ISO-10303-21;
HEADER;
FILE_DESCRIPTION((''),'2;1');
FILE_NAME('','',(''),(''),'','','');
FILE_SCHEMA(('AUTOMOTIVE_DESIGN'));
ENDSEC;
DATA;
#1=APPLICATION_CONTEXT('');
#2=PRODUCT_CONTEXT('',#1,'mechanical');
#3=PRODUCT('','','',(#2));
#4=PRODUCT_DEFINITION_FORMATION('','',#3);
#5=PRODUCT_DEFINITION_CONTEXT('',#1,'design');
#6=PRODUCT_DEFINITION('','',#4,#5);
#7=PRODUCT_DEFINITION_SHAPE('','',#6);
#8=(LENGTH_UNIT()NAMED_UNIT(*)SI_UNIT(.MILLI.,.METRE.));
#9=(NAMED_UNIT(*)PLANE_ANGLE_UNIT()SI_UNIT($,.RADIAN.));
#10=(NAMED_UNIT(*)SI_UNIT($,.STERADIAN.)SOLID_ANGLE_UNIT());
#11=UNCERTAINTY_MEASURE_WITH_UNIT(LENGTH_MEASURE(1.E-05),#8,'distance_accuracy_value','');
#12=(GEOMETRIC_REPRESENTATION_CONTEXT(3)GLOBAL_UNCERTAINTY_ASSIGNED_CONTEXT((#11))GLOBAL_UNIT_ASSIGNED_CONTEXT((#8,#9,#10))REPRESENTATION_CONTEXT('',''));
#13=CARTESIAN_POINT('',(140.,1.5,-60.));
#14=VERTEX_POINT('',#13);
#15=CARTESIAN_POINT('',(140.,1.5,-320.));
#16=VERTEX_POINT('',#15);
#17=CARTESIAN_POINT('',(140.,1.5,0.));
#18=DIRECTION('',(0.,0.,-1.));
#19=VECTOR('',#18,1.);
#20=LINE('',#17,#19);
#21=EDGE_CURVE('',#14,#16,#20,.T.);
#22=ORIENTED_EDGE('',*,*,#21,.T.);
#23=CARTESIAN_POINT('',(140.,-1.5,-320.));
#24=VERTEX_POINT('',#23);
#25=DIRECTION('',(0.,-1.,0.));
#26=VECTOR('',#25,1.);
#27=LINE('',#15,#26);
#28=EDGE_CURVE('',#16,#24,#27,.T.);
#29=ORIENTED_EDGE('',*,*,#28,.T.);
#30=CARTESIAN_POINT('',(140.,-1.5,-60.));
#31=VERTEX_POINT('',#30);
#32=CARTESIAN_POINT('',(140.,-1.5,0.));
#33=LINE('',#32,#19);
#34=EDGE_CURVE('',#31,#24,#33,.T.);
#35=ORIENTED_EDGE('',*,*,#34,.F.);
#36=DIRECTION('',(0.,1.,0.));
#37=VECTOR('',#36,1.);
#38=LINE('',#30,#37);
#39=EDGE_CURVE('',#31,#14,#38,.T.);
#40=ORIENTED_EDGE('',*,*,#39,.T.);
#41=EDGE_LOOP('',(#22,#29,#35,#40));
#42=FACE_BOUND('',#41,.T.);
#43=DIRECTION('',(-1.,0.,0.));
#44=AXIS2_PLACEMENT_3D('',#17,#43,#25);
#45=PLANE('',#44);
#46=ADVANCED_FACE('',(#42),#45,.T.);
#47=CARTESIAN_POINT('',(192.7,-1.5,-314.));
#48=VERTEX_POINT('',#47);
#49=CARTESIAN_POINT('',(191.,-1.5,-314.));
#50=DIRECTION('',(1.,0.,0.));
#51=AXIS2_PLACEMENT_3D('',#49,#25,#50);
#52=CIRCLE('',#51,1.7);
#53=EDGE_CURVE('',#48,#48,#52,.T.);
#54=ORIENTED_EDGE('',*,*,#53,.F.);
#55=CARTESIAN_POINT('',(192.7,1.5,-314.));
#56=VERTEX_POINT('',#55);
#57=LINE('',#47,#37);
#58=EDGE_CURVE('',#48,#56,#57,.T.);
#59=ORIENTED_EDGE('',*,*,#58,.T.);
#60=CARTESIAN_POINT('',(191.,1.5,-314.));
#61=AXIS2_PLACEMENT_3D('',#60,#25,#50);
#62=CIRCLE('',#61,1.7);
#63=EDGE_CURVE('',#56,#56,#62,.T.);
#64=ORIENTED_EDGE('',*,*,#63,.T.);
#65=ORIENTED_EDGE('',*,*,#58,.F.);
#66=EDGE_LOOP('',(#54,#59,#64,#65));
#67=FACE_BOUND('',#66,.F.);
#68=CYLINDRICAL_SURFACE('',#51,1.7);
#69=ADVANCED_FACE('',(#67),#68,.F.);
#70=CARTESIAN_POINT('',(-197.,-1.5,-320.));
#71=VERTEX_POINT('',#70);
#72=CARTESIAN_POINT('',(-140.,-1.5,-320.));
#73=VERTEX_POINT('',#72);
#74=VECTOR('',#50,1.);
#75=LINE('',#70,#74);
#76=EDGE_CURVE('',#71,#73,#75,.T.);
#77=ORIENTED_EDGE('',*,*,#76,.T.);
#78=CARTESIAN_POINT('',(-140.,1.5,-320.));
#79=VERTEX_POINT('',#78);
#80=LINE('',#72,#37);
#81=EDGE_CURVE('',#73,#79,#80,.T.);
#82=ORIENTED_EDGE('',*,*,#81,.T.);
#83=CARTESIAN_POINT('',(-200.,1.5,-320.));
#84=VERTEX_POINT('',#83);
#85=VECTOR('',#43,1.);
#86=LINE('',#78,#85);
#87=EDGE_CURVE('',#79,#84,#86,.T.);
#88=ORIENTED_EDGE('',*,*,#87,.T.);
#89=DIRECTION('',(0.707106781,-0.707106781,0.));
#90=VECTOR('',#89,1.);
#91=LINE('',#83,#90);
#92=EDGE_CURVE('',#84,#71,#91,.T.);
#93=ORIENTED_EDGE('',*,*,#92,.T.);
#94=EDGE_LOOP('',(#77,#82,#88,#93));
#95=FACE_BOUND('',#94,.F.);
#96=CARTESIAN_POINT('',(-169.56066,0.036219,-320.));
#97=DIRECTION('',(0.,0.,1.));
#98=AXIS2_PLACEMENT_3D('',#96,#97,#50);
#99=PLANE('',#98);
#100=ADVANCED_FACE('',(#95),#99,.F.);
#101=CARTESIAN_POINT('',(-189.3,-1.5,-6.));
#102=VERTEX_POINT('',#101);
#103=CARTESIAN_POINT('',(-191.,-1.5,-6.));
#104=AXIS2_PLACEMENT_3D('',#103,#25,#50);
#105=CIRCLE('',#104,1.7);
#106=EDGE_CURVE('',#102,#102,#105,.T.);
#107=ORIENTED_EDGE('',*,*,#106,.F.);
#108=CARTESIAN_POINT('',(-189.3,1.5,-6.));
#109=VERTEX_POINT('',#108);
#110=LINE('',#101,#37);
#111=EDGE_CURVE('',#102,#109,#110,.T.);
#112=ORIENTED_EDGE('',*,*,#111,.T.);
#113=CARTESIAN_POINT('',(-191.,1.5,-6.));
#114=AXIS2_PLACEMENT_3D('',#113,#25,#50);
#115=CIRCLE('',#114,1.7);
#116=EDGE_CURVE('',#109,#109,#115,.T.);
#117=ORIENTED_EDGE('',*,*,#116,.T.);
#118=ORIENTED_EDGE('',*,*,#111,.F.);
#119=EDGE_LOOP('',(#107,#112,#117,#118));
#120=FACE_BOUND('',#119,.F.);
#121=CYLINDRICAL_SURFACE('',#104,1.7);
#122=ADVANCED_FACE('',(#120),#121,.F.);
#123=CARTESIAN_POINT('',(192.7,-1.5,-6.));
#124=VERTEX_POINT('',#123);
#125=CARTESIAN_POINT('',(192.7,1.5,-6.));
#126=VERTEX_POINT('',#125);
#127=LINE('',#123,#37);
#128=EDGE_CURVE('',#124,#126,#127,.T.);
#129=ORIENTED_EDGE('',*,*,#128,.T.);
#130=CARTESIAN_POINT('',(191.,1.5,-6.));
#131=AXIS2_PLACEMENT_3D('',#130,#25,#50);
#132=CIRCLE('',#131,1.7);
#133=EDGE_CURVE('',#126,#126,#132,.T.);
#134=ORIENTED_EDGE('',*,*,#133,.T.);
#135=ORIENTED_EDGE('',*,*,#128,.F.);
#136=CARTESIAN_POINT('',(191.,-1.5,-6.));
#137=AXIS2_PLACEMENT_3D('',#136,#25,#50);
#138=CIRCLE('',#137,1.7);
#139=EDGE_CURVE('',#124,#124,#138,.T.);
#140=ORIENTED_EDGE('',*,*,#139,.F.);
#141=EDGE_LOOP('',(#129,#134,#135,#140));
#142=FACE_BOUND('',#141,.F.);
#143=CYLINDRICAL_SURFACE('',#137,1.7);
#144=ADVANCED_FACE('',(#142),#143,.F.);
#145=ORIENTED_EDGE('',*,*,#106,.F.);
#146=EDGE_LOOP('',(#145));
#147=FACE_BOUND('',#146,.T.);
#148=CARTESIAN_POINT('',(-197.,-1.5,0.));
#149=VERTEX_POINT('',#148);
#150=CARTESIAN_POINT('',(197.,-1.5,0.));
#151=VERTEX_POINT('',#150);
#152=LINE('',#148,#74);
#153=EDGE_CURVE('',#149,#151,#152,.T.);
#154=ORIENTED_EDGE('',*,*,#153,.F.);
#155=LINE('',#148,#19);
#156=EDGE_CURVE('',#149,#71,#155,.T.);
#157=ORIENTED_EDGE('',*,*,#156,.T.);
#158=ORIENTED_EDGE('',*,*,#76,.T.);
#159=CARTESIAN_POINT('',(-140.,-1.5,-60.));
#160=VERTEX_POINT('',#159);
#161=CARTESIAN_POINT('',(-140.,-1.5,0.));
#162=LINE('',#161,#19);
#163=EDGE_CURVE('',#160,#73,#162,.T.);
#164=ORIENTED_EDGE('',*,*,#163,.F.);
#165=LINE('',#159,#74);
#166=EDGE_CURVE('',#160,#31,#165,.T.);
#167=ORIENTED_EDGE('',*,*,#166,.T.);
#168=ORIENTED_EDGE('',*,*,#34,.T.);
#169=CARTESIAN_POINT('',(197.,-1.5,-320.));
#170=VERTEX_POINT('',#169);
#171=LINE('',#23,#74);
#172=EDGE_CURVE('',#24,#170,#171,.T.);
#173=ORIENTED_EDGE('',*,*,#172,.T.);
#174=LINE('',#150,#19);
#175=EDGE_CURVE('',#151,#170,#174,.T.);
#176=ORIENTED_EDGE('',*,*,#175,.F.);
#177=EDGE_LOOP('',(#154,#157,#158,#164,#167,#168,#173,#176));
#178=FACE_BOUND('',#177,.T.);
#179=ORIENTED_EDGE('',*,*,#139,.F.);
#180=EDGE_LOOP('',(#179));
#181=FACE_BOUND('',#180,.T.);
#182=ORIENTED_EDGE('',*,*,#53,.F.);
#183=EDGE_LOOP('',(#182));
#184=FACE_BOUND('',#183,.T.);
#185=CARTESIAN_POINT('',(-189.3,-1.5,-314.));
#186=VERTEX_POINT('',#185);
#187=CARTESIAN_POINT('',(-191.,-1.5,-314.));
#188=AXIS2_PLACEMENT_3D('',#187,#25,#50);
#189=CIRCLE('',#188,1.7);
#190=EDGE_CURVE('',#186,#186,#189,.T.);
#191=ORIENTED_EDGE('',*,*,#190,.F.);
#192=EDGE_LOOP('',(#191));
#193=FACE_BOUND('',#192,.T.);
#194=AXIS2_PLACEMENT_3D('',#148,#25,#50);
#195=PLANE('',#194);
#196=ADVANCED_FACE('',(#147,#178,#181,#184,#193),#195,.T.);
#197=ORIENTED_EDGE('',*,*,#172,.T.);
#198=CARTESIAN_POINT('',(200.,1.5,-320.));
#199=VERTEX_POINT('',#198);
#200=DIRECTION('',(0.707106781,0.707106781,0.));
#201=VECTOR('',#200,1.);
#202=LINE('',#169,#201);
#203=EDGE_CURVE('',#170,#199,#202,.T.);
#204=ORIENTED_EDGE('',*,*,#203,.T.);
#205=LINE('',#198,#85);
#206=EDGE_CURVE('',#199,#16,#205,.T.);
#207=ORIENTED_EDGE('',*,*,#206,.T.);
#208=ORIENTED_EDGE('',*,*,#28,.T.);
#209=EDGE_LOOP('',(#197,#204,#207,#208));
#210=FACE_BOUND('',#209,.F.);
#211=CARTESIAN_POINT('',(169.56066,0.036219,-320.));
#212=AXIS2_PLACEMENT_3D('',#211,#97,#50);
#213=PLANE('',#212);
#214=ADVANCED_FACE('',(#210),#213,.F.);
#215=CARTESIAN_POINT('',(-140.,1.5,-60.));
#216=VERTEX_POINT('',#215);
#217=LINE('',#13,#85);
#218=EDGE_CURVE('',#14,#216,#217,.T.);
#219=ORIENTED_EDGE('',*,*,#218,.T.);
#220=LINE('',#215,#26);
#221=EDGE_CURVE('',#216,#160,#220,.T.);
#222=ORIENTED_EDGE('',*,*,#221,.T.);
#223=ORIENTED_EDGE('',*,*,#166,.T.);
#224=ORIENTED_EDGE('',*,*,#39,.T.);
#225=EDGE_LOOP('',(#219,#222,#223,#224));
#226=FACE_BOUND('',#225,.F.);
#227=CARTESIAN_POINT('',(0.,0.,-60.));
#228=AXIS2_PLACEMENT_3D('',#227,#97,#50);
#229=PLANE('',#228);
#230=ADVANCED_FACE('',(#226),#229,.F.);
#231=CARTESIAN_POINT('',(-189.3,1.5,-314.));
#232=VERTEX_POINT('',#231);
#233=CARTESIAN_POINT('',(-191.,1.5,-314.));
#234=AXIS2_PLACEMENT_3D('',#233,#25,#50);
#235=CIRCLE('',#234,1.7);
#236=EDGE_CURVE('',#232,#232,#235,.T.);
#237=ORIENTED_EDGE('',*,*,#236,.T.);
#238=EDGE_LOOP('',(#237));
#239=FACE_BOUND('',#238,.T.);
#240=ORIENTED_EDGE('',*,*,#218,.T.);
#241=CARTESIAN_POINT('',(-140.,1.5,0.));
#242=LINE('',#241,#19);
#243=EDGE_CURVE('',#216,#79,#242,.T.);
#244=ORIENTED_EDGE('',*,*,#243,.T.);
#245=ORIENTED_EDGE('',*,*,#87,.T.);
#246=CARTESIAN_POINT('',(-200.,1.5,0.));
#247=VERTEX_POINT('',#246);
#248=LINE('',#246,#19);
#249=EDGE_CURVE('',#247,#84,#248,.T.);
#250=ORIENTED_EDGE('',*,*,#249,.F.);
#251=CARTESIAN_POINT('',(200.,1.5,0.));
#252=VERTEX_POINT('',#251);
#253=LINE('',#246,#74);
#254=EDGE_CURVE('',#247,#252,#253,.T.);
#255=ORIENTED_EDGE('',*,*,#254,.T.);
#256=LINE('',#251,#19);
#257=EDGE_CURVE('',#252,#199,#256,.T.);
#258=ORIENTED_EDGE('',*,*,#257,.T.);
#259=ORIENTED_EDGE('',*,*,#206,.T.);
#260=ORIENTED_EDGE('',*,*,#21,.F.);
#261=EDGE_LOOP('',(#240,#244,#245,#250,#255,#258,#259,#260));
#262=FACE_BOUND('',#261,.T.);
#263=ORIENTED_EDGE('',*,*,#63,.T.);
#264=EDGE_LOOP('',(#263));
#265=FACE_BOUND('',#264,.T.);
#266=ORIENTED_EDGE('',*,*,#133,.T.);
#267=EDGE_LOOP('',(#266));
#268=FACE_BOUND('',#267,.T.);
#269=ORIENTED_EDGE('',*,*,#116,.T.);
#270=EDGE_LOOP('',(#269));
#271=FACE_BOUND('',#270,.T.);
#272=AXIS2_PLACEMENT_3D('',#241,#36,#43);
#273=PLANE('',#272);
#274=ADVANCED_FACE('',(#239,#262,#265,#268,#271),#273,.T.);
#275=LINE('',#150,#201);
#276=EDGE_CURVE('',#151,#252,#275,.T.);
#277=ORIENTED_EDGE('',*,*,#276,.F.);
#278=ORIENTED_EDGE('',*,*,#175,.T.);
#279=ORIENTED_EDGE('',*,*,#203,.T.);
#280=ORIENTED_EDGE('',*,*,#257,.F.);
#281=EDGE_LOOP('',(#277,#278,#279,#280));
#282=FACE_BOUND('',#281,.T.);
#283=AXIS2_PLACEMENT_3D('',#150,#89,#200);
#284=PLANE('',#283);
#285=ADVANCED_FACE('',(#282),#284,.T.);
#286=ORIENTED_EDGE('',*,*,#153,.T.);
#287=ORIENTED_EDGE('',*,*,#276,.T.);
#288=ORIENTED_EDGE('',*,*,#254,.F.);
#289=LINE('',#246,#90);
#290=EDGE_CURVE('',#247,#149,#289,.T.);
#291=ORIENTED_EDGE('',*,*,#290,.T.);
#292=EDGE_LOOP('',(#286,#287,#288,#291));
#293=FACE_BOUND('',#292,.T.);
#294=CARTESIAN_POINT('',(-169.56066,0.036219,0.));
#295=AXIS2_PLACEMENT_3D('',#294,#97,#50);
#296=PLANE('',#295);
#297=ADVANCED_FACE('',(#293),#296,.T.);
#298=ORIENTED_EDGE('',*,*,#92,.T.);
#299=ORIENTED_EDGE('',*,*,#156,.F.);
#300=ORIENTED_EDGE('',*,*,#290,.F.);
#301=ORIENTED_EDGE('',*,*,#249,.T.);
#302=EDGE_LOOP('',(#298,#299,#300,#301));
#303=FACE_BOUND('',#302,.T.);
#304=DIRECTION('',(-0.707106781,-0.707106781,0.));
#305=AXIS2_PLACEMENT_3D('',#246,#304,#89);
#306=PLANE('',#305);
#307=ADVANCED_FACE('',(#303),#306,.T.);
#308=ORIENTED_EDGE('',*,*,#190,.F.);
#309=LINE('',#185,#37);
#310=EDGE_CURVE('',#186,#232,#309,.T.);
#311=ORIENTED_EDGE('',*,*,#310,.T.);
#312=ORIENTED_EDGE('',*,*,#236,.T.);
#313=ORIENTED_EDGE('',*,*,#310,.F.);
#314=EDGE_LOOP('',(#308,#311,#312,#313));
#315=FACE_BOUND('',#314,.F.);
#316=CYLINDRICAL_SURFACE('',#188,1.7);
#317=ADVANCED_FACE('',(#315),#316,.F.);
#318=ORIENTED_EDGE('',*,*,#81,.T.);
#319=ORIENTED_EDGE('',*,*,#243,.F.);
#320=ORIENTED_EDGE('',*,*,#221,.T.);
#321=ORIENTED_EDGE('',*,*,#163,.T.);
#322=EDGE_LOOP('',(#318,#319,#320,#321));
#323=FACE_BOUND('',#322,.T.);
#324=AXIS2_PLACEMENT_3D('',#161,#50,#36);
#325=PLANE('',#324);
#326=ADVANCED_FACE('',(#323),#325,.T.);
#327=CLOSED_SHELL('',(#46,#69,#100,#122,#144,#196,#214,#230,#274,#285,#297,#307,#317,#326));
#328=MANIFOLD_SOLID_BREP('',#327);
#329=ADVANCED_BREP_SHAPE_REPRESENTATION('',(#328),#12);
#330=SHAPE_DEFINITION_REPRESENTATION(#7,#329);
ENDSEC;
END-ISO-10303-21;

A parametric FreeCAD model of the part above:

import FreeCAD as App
import Part
import Sketcher
from FreeCAD import Vector
Q = App.Units.Quantity

doc = App.newDocument("Part")
params = doc.addObject("Spreadsheet::Sheet", "Params")
for row, (alias, value) in enumerate([
    ("sketch1_width", "280 mm"),
    ("sketch1_height", "3 mm"),
    ("pad1_length", "60 mm"),
    ("sketch2_width", "60 mm"),
    ("sketch2_width2", "57 mm"),
    ("pad2_length", "320 mm"),
    ("sketch3_diameter", "3.4 mm"),
    ("pocket1_length", "3 mm"),
], start=1):
    params.set(f"A{row}", alias)
    params.set(f"B{row}", "=" + value)
    params.setAlias(f"B{row}", alias)

body = doc.addObject("PartDesign::Body", "Body")

sketch1 = body.newObject("Sketcher::SketchObject", "Sketch")
sketch1.AttachmentSupport = (doc.getObject("XY_Plane"), [""])
sketch1.MapMode = "FlatFace"
sketch1.addGeometry(Part.LineSegment(Vector(140, 1.5, 0), Vector(-140, 1.5, 0)), False)
sketch1.addGeometry(Part.LineSegment(Vector(-140, 1.5, 0), Vector(-140, -1.5, 0)), False)
sketch1.addGeometry(Part.LineSegment(Vector(-140, -1.5, 0), Vector(140, -1.5, 0)), False)
sketch1.addGeometry(Part.LineSegment(Vector(140, -1.5, 0), Vector(140, 1.5, 0)), False)
sketch1.addConstraint(Sketcher.Constraint("Coincident", 0, 2, 1, 1))
sketch1.addConstraint(Sketcher.Constraint("Coincident", 1, 2, 2, 1))
sketch1.addConstraint(Sketcher.Constraint("Coincident", 2, 2, 3, 1))
sketch1.addConstraint(Sketcher.Constraint("Coincident", 3, 2, 0, 1))
sketch1.addConstraint(Sketcher.Constraint("Horizontal", 0))
sketch1.addConstraint(Sketcher.Constraint("Vertical", 1))
sketch1.addConstraint(Sketcher.Constraint("Horizontal", 2))
sketch1.addConstraint(Sketcher.Constraint("Vertical", 3))
sketch1.addConstraint(Sketcher.Constraint("Symmetric", 0, 2, 2, 2, -1, 1))
sketch1.addConstraint(Sketcher.Constraint("DistanceX", 0, 2, 0, 1, Q("280 mm")))
sketch1.addConstraint(Sketcher.Constraint("DistanceY", 1, 2, 1, 1, Q("3 mm")))
sketch1.setExpression("Constraints[9]", "Params.sketch1_width")
sketch1.setExpression("Constraints[10]", "Params.sketch1_height")
pad1 = body.newObject("PartDesign::Pad", "Pad")
pad1.Profile = sketch1
pad1.setExpression("Length", "Params.pad1_length")
pad1.Reversed = True

sketch2 = body.newObject("Sketcher::SketchObject", "Sketch001")
sketch2.AttachmentSupport = (doc.getObject("XY_Plane"), [""])
sketch2.MapMode = "FlatFace"
sketch2.addGeometry(Part.LineSegment(Vector(-140, 1.5, 0), Vector(-200, 1.5, 0)), False)
sketch2.addGeometry(Part.LineSegment(Vector(-200, 1.5, 0), Vector(-197, -1.5, 0)), False)
sketch2.addGeometry(Part.LineSegment(Vector(-197, -1.5, 0), Vector(-140, -1.5, 0)), False)
sketch2.addGeometry(Part.LineSegment(Vector(-140, -1.5, 0), Vector(-140, 1.5, 0)), False)
sketch2.addGeometry(Part.LineSegment(Vector(200, 1.5, 0), Vector(140, 1.5, 0)), False)
sketch2.addGeometry(Part.LineSegment(Vector(140, 1.5, 0), Vector(140, -1.5, 0)), False)
sketch2.addGeometry(Part.LineSegment(Vector(140, -1.5, 0), Vector(197, -1.5, 0)), False)
sketch2.addGeometry(Part.LineSegment(Vector(197, -1.5, 0), Vector(200, 1.5, 0)), False)
sketch2.addConstraint(Sketcher.Constraint("Coincident", 0, 2, 1, 1))
sketch2.addConstraint(Sketcher.Constraint("Coincident", 1, 2, 2, 1))
sketch2.addConstraint(Sketcher.Constraint("Coincident", 2, 2, 3, 1))
sketch2.addConstraint(Sketcher.Constraint("Coincident", 3, 2, 0, 1))
sketch2.addConstraint(Sketcher.Constraint("Coincident", 4, 2, 5, 1))
sketch2.addConstraint(Sketcher.Constraint("Coincident", 5, 2, 6, 1))
sketch2.addConstraint(Sketcher.Constraint("Coincident", 6, 2, 7, 1))
sketch2.addConstraint(Sketcher.Constraint("Coincident", 7, 2, 4, 1))
sketch2.addConstraint(Sketcher.Constraint("Horizontal", 0))
sketch2.addConstraint(Sketcher.Constraint("Horizontal", 2))
sketch2.addConstraint(Sketcher.Constraint("Vertical", 3))
sketch2.addConstraint(Sketcher.Constraint("Horizontal", 4))
sketch2.addConstraint(Sketcher.Constraint("Vertical", 5))
sketch2.addConstraint(Sketcher.Constraint("Horizontal", 6))
sketch2.addConstraint(Sketcher.Constraint("Symmetric", 2, 2, 4, 2, -1, 1))
sketch2.addConstraint(Sketcher.Constraint("Symmetric", 1, 2, 6, 2, -2))
sketch2.addConstraint(Sketcher.Constraint("Symmetric", 0, 2, 7, 2, -2))
sketch2.addConstraint(Sketcher.Constraint("Perpendicular", 1, 7))
sketch2.addConstraint(Sketcher.Constraint("DistanceX", 0, 2, 0, 1, Q("60 mm")))
sketch2.addConstraint(Sketcher.Constraint("DistanceX", 2, 1, 2, 2, Q("57 mm")))
sketch2.addConstraint(Sketcher.Constraint("DistanceX", 0, 2, -1, 1, Q("200 mm")))
sketch2.setExpression("Constraints[18]", "Params.sketch2_width")
sketch2.setExpression("Constraints[19]", "Params.sketch2_width2")
pad2 = body.newObject("PartDesign::Pad", "Pad001")
pad2.Profile = sketch2
pad2.setExpression("Length", "Params.pad2_length")
pad2.Reversed = True

sketch3 = body.newObject("Sketcher::SketchObject", "Sketch002")
sketch3.AttachmentSupport = (doc.getObject("XZ_Plane"), [""])
sketch3.MapMode = "FlatFace"
sketch3.AttachmentOffset = App.Placement(Vector(0, 0, 1.5), App.Rotation())
sketch3.addGeometry(Part.Circle(Vector(191, -6, 0), Vector(0, 0, 1), 1.7), False)
sketch3.addGeometry(Part.Circle(Vector(191, -314, 0), Vector(0, 0, 1), 1.7), False)
sketch3.addGeometry(Part.Circle(Vector(-191, -314, 0), Vector(0, 0, 1), 1.7), False)
sketch3.addGeometry(Part.Circle(Vector(-191, -6, 0), Vector(0, 0, 1), 1.7), False)
sketch3.addConstraint(Sketcher.Constraint("Equal", 0, 1))
sketch3.addConstraint(Sketcher.Constraint("Equal", 1, 2))
sketch3.addConstraint(Sketcher.Constraint("Equal", 2, 3))
sketch3.addConstraint(Sketcher.Constraint("Symmetric", 1, 3, 2, 3, -2))
sketch3.addConstraint(Sketcher.Constraint("Symmetric", 0, 3, 3, 3, -2))
sketch3.addConstraint(Sketcher.Constraint("Vertical", 0, 3, 1, 3))
sketch3.addConstraint(Sketcher.Constraint("Diameter", 0, Q("3.4 mm")))
sketch3.addConstraint(Sketcher.Constraint("DistanceX", -1, 1, 0, 3, Q("191 mm")))
sketch3.addConstraint(Sketcher.Constraint("DistanceY", 0, 3, -1, 1, Q("6 mm")))
sketch3.addConstraint(Sketcher.Constraint("DistanceY", 1, 3, -1, 1, Q("314 mm")))
sketch3.setExpression("Constraints[6]", "Params.sketch3_diameter")
pocket1 = body.newObject("PartDesign::Pocket", "Pocket")
pocket1.Profile = sketch3
pocket1.setExpression("Length", "Params.pocket1_length")

doc.recompute()
